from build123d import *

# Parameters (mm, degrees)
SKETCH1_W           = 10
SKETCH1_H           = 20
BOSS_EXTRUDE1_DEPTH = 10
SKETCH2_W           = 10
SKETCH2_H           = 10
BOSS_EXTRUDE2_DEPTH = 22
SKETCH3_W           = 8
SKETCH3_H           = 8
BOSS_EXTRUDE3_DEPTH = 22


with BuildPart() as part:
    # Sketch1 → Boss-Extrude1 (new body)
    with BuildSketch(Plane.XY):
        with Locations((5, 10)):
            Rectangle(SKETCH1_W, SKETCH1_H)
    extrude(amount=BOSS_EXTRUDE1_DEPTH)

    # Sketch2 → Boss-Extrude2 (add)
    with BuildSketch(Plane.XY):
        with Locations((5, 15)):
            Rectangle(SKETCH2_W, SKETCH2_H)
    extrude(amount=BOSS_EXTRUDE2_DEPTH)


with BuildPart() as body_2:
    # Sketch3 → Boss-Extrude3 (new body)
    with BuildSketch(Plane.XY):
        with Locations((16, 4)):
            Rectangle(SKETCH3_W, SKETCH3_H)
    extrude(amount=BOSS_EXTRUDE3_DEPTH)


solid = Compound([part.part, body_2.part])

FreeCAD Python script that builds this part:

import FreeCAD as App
import Part
import Sketcher


def add_polygon(sketch, points):
    """Adds a closed chain of lines whose ends are joined by coincident constraints."""
    first, n = sketch.GeometryCount, len(points)
    for a, b in zip(points, points[1:] + points[:1]):
        sketch.addGeometry(Part.LineSegment(App.Vector(*a, 0), App.Vector(*b, 0)), False)
    for i in range(n):
        sketch.addConstraint(Sketcher.Constraint("Coincident", first + i, 2, first + (i + 1) % n, 1))

doc = App.newDocument("Part")
body = doc.addObject("PartDesign::Body", "Body")

sketch1 = body.newObject("Sketcher::SketchObject", "Sketch")
sketch1.AttachmentSupport = (doc.getObject("XY_Plane"), [""])
sketch1.MapMode = "FlatFace"
add_polygon(sketch1, [(0, 20), (0, 0), (10, 0), (10, 20)])
sketch1.addConstraint([
    Sketcher.Constraint("Vertical", 0),
    Sketcher.Constraint("Horizontal", 1),
    Sketcher.Constraint("Vertical", 2),
    Sketcher.Constraint("Horizontal", 3),
    Sketcher.Constraint("Coincident", 0, 2, -1, 1),
    Sketcher.Constraint("DistanceX", 1, 1, 1, 2, 10.0),
    Sketcher.Constraint("DistanceY", 0, 2, 0, 1, 20.0),
])
pad1 = body.newObject("PartDesign::Pad", "Pad")
pad1.Profile = sketch1
pad1.Length = 10

sketch2 = body.newObject("Sketcher::SketchObject", "Sketch001")
sketch2.AttachmentSupport = (doc.getObject("XY_Plane"), [""])
sketch2.MapMode = "FlatFace"
add_polygon(sketch2, [(0, 20), (0, 10), (10, 10), (10, 20)])
sketch2.addConstraint([
    Sketcher.Constraint("Vertical", 0),
    Sketcher.Constraint("Horizontal", 1),
    Sketcher.Constraint("Vertical", 2),
    Sketcher.Constraint("Horizontal", 3),
    Sketcher.Constraint("PointOnObject", 0, 2, -2),
    Sketcher.Constraint("Equal", 3, 0),
    Sketcher.Constraint("DistanceX", 1, 1, 1, 2, 10.0),
    Sketcher.Constraint("DistanceY", -1, 1, 0, 2, 10.0),
])
pad2 = body.newObject("PartDesign::Pad", "Pad001")
pad2.Profile = sketch2
pad2.Length = 22
body2 = doc.addObject("PartDesign::Body", "Body001")

sketch3 = body2.newObject("Sketcher::SketchObject", "Sketch002")
sketch3.AttachmentSupport = (doc.getObject("XY_Plane001"), [""])
sketch3.MapMode = "FlatFace"
add_polygon(sketch3, [(12, 8), (12, 0), (20, 0), (20, 8)])
sketch3.addConstraint([
    Sketcher.Constraint("Vertical", 0),
    Sketcher.Constraint("Horizontal", 1),
    Sketcher.Constraint("Vertical", 2),
    Sketcher.Constraint("Horizontal", 3),
    Sketcher.Constraint("PointOnObject", 0, 2, -1),
    Sketcher.Constraint("Equal", 3, 0),
    Sketcher.Constraint("DistanceX", 1, 1, 1, 2, 8.0),
    Sketcher.Constraint("DistanceX", -1, 1, 0, 2, 12.0),
])
pad3 = body2.newObject("PartDesign::Pad", "Pad002")
pad3.Profile = sketch3
pad3.Length = 22

doc.recompute()
